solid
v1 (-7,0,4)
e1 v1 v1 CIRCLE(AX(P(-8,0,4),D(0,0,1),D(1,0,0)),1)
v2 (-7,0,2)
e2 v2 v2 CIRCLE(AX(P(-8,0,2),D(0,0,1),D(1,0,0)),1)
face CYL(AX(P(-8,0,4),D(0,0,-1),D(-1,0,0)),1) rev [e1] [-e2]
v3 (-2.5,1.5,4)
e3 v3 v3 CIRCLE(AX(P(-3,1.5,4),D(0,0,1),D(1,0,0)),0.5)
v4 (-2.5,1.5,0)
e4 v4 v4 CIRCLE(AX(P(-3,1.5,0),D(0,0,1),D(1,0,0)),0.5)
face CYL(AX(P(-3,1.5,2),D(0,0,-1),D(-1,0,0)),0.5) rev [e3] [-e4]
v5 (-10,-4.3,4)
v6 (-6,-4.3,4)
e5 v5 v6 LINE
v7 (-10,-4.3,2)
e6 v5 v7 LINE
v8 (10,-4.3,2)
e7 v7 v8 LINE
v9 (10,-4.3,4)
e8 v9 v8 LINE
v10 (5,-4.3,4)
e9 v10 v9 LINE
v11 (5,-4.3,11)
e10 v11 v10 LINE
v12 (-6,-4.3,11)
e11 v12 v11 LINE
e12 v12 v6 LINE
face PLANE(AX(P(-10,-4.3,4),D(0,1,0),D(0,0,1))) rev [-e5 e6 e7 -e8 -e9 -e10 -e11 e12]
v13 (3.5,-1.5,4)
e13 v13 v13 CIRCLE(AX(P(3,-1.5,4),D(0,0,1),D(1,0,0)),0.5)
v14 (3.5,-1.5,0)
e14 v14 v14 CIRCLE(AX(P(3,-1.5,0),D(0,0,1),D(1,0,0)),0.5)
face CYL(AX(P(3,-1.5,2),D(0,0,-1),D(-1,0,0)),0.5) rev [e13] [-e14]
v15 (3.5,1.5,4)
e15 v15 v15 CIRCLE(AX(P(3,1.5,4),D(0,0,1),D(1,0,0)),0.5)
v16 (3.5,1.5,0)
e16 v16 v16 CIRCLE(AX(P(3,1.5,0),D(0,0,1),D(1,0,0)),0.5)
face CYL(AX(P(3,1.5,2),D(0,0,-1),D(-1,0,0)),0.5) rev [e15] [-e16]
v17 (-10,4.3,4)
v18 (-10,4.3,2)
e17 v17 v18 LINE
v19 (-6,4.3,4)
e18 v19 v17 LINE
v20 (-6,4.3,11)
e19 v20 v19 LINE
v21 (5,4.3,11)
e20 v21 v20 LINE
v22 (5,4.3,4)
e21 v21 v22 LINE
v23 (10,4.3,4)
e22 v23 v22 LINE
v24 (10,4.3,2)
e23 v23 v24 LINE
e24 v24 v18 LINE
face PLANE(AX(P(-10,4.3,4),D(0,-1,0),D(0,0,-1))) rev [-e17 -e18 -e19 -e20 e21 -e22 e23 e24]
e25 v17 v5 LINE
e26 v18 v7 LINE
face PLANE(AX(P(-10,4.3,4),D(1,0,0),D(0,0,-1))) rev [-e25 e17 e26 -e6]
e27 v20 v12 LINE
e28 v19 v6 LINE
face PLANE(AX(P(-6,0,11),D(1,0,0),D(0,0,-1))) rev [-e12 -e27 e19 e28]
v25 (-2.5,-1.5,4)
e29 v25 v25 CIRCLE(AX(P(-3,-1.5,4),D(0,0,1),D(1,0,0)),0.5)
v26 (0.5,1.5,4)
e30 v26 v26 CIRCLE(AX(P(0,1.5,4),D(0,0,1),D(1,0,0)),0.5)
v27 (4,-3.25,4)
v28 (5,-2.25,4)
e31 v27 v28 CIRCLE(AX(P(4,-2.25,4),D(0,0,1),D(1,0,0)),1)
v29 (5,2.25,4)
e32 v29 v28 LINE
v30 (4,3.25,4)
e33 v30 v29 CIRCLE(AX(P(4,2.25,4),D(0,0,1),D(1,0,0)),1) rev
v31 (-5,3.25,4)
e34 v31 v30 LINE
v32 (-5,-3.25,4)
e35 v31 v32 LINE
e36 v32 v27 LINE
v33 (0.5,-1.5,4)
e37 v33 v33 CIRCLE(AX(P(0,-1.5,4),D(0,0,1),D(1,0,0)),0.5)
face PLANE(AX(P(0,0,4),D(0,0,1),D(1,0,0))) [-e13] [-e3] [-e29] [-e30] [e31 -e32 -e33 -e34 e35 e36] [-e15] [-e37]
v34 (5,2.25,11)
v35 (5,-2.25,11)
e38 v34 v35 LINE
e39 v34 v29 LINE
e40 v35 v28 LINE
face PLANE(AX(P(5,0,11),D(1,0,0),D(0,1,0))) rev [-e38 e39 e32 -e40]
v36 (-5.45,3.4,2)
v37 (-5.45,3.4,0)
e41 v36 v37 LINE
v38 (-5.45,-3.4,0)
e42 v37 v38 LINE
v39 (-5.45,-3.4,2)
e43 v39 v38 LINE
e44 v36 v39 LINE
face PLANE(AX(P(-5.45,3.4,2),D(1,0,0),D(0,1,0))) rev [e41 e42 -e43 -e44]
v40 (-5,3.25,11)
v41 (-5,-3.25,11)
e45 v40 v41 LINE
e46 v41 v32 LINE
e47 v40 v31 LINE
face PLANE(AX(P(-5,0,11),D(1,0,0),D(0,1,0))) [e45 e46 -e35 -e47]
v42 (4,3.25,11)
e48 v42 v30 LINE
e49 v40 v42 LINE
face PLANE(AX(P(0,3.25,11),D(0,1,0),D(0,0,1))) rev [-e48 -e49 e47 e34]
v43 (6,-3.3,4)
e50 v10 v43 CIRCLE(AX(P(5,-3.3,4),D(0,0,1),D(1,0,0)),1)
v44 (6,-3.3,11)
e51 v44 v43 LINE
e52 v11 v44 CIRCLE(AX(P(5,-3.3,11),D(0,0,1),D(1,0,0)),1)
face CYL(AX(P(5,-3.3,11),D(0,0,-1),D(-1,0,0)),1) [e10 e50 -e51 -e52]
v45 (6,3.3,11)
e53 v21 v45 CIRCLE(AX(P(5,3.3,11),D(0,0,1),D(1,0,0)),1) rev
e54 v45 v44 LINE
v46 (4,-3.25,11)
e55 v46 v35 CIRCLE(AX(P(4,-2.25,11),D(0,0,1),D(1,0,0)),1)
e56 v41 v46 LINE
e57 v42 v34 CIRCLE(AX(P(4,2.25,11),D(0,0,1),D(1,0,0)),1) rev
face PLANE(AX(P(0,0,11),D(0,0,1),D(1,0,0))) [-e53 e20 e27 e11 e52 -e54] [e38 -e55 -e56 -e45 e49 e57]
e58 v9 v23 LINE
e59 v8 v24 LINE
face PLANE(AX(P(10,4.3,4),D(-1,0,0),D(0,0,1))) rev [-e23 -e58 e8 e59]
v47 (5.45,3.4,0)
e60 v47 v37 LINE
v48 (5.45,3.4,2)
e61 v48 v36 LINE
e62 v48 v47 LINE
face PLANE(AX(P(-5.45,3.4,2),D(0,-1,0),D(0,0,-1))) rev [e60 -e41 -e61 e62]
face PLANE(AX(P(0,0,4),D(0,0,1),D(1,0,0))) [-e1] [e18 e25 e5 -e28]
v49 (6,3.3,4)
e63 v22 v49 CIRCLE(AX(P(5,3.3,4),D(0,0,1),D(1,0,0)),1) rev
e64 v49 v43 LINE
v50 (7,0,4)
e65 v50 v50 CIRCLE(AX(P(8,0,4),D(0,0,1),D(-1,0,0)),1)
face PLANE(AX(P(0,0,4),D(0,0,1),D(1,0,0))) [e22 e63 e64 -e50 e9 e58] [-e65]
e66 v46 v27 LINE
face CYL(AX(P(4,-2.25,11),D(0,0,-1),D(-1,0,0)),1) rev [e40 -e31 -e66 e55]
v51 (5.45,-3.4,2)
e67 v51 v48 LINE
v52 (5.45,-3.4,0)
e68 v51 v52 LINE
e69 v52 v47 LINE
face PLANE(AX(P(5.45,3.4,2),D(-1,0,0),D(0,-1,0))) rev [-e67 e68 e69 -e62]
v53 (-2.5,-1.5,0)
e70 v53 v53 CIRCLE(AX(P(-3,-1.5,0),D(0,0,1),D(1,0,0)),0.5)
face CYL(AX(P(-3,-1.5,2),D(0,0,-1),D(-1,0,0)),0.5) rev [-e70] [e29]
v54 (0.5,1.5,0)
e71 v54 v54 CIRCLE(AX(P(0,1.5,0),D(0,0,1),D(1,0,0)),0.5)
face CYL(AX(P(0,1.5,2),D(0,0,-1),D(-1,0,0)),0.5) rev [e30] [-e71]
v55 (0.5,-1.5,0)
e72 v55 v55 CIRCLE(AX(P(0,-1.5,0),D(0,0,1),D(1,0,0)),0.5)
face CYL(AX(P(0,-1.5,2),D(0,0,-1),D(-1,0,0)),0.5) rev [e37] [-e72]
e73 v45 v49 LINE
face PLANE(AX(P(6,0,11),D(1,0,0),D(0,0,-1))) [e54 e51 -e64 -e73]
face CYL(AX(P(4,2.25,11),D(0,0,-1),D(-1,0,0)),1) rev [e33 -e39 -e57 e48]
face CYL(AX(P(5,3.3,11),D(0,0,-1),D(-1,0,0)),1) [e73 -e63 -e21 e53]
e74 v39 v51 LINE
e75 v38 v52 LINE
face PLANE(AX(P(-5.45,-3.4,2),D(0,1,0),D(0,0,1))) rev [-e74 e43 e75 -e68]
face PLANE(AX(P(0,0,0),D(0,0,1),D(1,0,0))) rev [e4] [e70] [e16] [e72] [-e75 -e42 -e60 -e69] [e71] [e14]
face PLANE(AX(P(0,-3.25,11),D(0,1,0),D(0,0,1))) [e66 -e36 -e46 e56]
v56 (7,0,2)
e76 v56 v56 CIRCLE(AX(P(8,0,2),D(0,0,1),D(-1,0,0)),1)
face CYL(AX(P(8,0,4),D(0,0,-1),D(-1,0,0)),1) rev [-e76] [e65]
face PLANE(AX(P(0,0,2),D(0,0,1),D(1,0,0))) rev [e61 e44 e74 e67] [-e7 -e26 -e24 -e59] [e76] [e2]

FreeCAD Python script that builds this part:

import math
import FreeCAD as App
import Part
import Sketcher
Q = App.Units.Quantity


def add_polygon(sketch, points):
    """Adds a closed chain of lines whose ends are joined by coincident constraints."""
    first, n = sketch.GeometryCount, len(points)
    for a, b in zip(points, points[1:] + points[:1]):
        sketch.addGeometry(Part.LineSegment(App.Vector(*a, 0), App.Vector(*b, 0)), False)
    for i in range(n):
        sketch.addConstraint(Sketcher.Constraint("Coincident", first + i, 2, first + (i + 1) % n, 1))

doc = App.newDocument("Part")
body = doc.addObject("PartDesign::Body", "Body")

sketch1 = doc.addObject("Sketcher::SketchObject", "Sketch")
body.addObject(sketch1)
sketch1.AttachmentSupport = (doc.XY_Plane, [""])
sketch1.MapMode = "FlatFace"
add_polygon(sketch1, [(-5.5, 3.4), (-5.5, -3.4), (5.5, -3.4), (5.5, 3.4)])
sketch1.addGeometry(Part.Circle(App.Vector(-3, -1.5, 0), App.Vector(0, 0, 1), 0.5), False)
sketch1.addGeometry(Part.Circle(App.Vector(0, -1.5, 0), App.Vector(0, 0, 1), 0.5), False)
sketch1.addGeometry(Part.Circle(App.Vector(3, -1.5, 0), App.Vector(0, 0, 1), 0.5), False)
sketch1.addGeometry(Part.Circle(App.Vector(-3, 1.5, 0), App.Vector(0, 0, 1), 0.5), False)
sketch1.addGeometry(Part.Circle(App.Vector(0, 1.5, 0), App.Vector(0, 0, 1), 0.5), False)
sketch1.addGeometry(Part.Circle(App.Vector(3, 1.5, 0), App.Vector(0, 0, 1), 0.5), False)
sketch1.addConstraint([
    Sketcher.Constraint("Vertical", 0),
    Sketcher.Constraint("Horizontal", 1),
    Sketcher.Constraint("Vertical", 2),
    Sketcher.Constraint("Horizontal", 3),
    Sketcher.Constraint("Equal", 4, 5),
    Sketcher.Constraint("Equal", 5, 6),
    Sketcher.Constraint("Equal", 6, 7),
    Sketcher.Constraint("Equal", 7, 8),
    Sketcher.Constraint("Equal", 8, 9),
    Sketcher.Constraint("Symmetric", 6, 3, 7, 3, -1, 1),
    Sketcher.Constraint("Symmetric", 5, 3, 8, 3, -1, 1),
    Sketcher.Constraint("Symmetric", 4, 3, 9, 3, -1, 1),
    Sketcher.Constraint("Symmetric", 0, 2, 2, 2, -1, 1),
    Sketcher.Constraint("Symmetric", 4, 3, 6, 3, -2),
    Sketcher.Constraint("PointOnObject", 5, 3, -2),
    Sketcher.Constraint("Horizontal", 4, 3, 5, 3),
    Sketcher.Constraint("Diameter", 4, Q("1 mm")),
    Sketcher.Constraint("DistanceX", 1, 1, 1, 2, Q("10.9 mm")),
    Sketcher.Constraint("DistanceY", 0, 2, 0, 1, Q("6.8 mm")),
    Sketcher.Constraint("DistanceX", 4, 3, -1, 1, Q("3 mm")),
    Sketcher.Constraint("DistanceY", 4, 3, 7, 3, Q("3 mm")),
])
pad1 = doc.addObject("PartDesign::Pad", "Pad")
body.addObject(pad1)
pad1.Profile = sketch1
pad1.Length = 2

sketch2 = doc.addObject("Sketcher::SketchObject", "Sketch001")
body.addObject(sketch2)
sketch2.AttachmentSupport = (doc.XY_Plane, [""])
sketch2.MapMode = "FlatFace"
sketch2.AttachmentOffset = App.Placement(App.Vector(0, 0, 2), App.Rotation())
add_polygon(sketch2, [(-10, 4.3), (-10, -4.3), (10, -4.3), (10, 4.3)])
sketch2.addGeometry(Part.Circle(App.Vector(-3, -1.5, 0), App.Vector(0, 0, 1), 0.5), False)
sketch2.addGeometry(Part.Circle(App.Vector(0, -1.5, 0), App.Vector(0, 0, 1), 0.5), False)
sketch2.addGeometry(Part.Circle(App.Vector(3, -1.5, 0), App.Vector(0, 0, 1), 0.5), False)
sketch2.addGeometry(Part.Circle(App.Vector(-8, 0, 0), App.Vector(0, 0, 1), 1), False)
sketch2.addGeometry(Part.Circle(App.Vector(-3, 1.5, 0), App.Vector(0, 0, 1), 0.5), False)
sketch2.addGeometry(Part.Circle(App.Vector(8, 0, 0), App.Vector(0, 0, 1), 1), False)
sketch2.addGeometry(Part.Circle(App.Vector(0, 1.5, 0), App.Vector(0, 0, 1), 0.5), False)
sketch2.addGeometry(Part.Circle(App.Vector(3, 1.5, 0), App.Vector(0, 0, 1), 0.5), False)
sketch2.addConstraint([
    Sketcher.Constraint("Vertical", 0),
    Sketcher.Constraint("Horizontal", 1),
    Sketcher.Constraint("Vertical", 2),
    Sketcher.Constraint("Horizontal", 3),
    Sketcher.Constraint("Equal", 4, 5),
    Sketcher.Constraint("Equal", 5, 6),
    Sketcher.Constraint("Equal", 6, 8),
    Sketcher.Constraint("Equal", 7, 9),
    Sketcher.Constraint("Equal", 8, 10),
    Sketcher.Constraint("Equal", 10, 11),
    Sketcher.Constraint("Symmetric", 6, 3, 8, 3, -1, 1),
    Sketcher.Constraint("Symmetric", 7, 3, 9, 3, -1, 1),
    Sketcher.Constraint("Symmetric", 5, 3, 10, 3, -1, 1),
    Sketcher.Constraint("Symmetric", 4, 3, 11, 3, -1, 1),
    Sketcher.Constraint("Symmetric", 0, 2, 2, 2, -1, 1),
    Sketcher.Constraint("Symmetric", 4, 3, 6, 3, -2),
    Sketcher.Constraint("PointOnObject", 5, 3, -2),
    Sketcher.Constraint("PointOnObject", 7, 3, -1),
    Sketcher.Constraint("Horizontal", 4, 3, 5, 3),
    Sketcher.Constraint("Diameter", 4, Q("1 mm")),
    Sketcher.Constraint("Diameter", 7, Q("2 mm")),
    Sketcher.Constraint("DistanceX", 1, 1, 1, 2, Q("20 mm")),
    Sketcher.Constraint("DistanceY", 0, 2, 0, 1, Q("8.6 mm")),
    Sketcher.Constraint("DistanceX", 4, 3, -1, 1, Q("3 mm")),
    Sketcher.Constraint("DistanceX", 7, 3, -1, 1, Q("8 mm")),
    Sketcher.Constraint("DistanceY", 4, 3, 8, 3, Q("3 mm")),
])
pad2 = doc.addObject("PartDesign::Pad", "Pad001")
body.addObject(pad2)
pad2.Profile = sketch2
pad2.Length = 2

sketch3 = doc.addObject("Sketcher::SketchObject", "Sketch002")
body.addObject(sketch3)
sketch3.AttachmentSupport = (doc.XY_Plane, [""])
sketch3.MapMode = "FlatFace"
sketch3.AttachmentOffset = App.Placement(App.Vector(0, 0, 4), App.Rotation())
sketch3.addGeometry([
    Part.LineSegment(App.Vector(5, 4.3, 0), App.Vector(-6, 4.3, 0)),
    Part.LineSegment(App.Vector(-6, 4.3, 0), App.Vector(-6, -4.3, 0)),
    Part.LineSegment(App.Vector(-6, -4.3, 0), App.Vector(5, -4.3, 0)),
    Part.ArcOfCircle(Part.Circle(App.Vector(5, -3.3, 0), App.Vector(0, 0, 1), 1), math.radians(-90), math.radians(0)),
    Part.LineSegment(App.Vector(6, -3.3, 0), App.Vector(6, 3.3, 0)),
    Part.ArcOfCircle(Part.Circle(App.Vector(5, 3.3, 0), App.Vector(0, 0, 1), 1), math.radians(0), math.radians(90)),
    Part.LineSegment(App.Vector(4, -3.2, 0), App.Vector(-5, -3.2, 0)),
    Part.LineSegment(App.Vector(-5, -3.2, 0), App.Vector(-5, 3.2, 0)),
    Part.LineSegment(App.Vector(-5, 3.2, 0), App.Vector(4, 3.2, 0)),
    Part.ArcOfCircle(Part.Circle(App.Vector(4, 2.2, 0), App.Vector(0, 0, 1), 1), math.radians(0), math.radians(90)),
    Part.LineSegment(App.Vector(5, 2.2, 0), App.Vector(5, -2.2, 0)),
    Part.ArcOfCircle(Part.Circle(App.Vector(4, -2.2, 0), App.Vector(0, 0, 1), 1), math.radians(-90), math.radians(0)),
], False)
sketch3.addConstraint([
    Sketcher.Constraint("Coincident", 0, 2, 1, 1),
    Sketcher.Constraint("Coincident", 1, 2, 2, 1),
    Sketcher.Constraint("Tangent", 2, 2, 3, 1),
    Sketcher.Constraint("Tangent", 3, 2, 4, 1),
    Sketcher.Constraint("Tangent", 4, 2, 5, 1),
    Sketcher.Constraint("Tangent", 5, 2, 0, 1),
    Sketcher.Constraint("Coincident", 6, 2, 7, 1),
    Sketcher.Constraint("Coincident", 7, 2, 8, 1),
    Sketcher.Constraint("Tangent", 8, 2, 9, 2),
    Sketcher.Constraint("Tangent", 9, 1, 10, 1),
    Sketcher.Constraint("Tangent", 10, 2, 11, 2),
    Sketcher.Constraint("Tangent", 11, 1, 6, 1),
    Sketcher.Constraint("Horizontal", 0),
    Sketcher.Constraint("Vertical", 1),
    Sketcher.Constraint("Horizontal", 2),
    Sketcher.Constraint("Vertical", 4),
    Sketcher.Constraint("Horizontal", 6),
    Sketcher.Constraint("Vertical", 7),
    Sketcher.Constraint("Horizontal", 8),
    Sketcher.Constraint("Vertical", 10),
    Sketcher.Constraint("Equal", 3, 5),
    Sketcher.Constraint("Equal", 5, 9),
    Sketcher.Constraint("Equal", 9, 11),
    Sketcher.Constraint("Vertical", 5, 2, 9, 1),
    Sketcher.Constraint("Radius", 3, Q("1 mm")),
    Sketcher.Constraint("DistanceX", 0, 2, 0, 1, Q("11 mm")),
    Sketcher.Constraint("DistanceX", 6, 2, 6, 1, Q("9 mm")),
    Sketcher.Constraint("DistanceY", 1, 2, 1, 1, Q("8.6 mm")),
    Sketcher.Constraint("DistanceY", 7, 1, 7, 2, Q("6.5 mm")),
    Sketcher.Constraint("DistanceX", -1, 1, 3, 3, Q("5 mm")),
    Sketcher.Constraint("DistanceY", 3, 3, -1, 1, Q("3.3 mm")),
    Sketcher.Constraint("DistanceY", -1, 1, 9, 3, Q("2.25 mm")),
])
pad3 = doc.addObject("PartDesign::Pad", "Pad002")
body.addObject(pad3)
pad3.Profile = sketch3
pad3.Length = 7

doc.recompute()
